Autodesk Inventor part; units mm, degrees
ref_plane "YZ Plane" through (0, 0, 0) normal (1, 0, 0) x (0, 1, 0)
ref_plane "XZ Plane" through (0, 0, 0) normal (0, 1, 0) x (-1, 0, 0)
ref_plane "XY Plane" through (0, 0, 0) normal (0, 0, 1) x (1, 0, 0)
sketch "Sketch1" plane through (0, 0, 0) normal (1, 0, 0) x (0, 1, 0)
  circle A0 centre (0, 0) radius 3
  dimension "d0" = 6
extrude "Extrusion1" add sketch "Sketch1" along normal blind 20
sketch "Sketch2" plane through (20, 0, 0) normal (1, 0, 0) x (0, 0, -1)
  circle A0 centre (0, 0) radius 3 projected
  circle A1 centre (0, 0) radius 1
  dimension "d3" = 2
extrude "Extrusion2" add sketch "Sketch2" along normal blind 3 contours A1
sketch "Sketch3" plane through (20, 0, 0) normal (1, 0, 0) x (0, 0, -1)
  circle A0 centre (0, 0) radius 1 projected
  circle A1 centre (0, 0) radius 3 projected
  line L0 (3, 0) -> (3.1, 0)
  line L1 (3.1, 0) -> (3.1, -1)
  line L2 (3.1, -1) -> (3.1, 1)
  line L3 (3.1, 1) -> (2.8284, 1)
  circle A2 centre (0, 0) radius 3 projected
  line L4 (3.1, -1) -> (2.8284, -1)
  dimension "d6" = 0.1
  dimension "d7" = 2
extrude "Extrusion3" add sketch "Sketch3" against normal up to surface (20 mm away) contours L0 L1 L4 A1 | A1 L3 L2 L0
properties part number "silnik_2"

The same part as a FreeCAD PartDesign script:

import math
import FreeCAD as App
import Part
import Sketcher

V = App.Vector

doc = App.newDocument("Part")
body = doc.addObject("PartDesign::Body", "Body")

# Sketch on YZ plane
sketch1 = body.newObject("Sketcher::SketchObject", "Sketch")
sketch1.AttachmentSupport = (doc.getObject("YZ_Plane"), [""])
sketch1.MapMode = "FlatFace"
sketch1.addGeometry(Part.Circle(V(0, 0, 0), V(0, 0, 1), 3), False)
sketch1.addConstraint([
    Sketcher.Constraint("Coincident", 0, 3, -1, 1),
    Sketcher.Constraint("Diameter", 0, 6.0),
])
pad1 = body.newObject("PartDesign::Pad", "Pad")
pad1.Profile = sketch1
pad1.Length = 20

# Sketch on YZ plane
sketch2 = body.newObject("Sketcher::SketchObject", "Sketch001")
sketch2.AttachmentSupport = (doc.getObject("YZ_Plane"), [""])
sketch2.MapMode = "FlatFace"
sketch2.AttachmentOffset = App.Placement(V(0, 0, 20), App.Rotation())
sketch2.addGeometry(Part.Circle(V(0, 0, 0), V(0, 0, 1), 1), False)
sketch2.addConstraint([
    Sketcher.Constraint("Coincident", 0, 3, -1, 1),
    Sketcher.Constraint("Diameter", 0, 2.0),
])
pad2 = body.newObject("PartDesign::Pad", "Pad001")
pad2.Profile = sketch2
pad2.Length = 3

# Sketch on YZ plane
sketch3 = body.newObject("Sketcher::SketchObject", "Sketch002")
sketch3.AttachmentSupport = (doc.getObject("YZ_Plane"), [""])
sketch3.MapMode = "FlatFace"
sketch3.AttachmentOffset = App.Placement(V(0, 0, 20), App.Rotation())
sketch3.addGeometry([
    Part.LineSegment(V(-1, -3.1, 0), V(1, -3.1, 0)),
    Part.LineSegment(V(1, -3.1, 0), V(1, -2.83, 0)),
    Part.ArcOfCircle(Part.Circle(V(0, 0, 0), V(0, 0, 1), 3), math.radians(-109), math.radians(-71)),
    Part.LineSegment(V(-1, -2.83, 0), V(-1, -3.1, 0)),
], False)
sketch3.addConstraint([
    Sketcher.Constraint("Coincident", 0, 2, 1, 1),
    Sketcher.Constraint("Coincident", 1, 2, 2, 2),
    Sketcher.Constraint("Coincident", 2, 1, 3, 1),
    Sketcher.Constraint("Coincident", 3, 2, 0, 1),
    Sketcher.Constraint("Horizontal", 0),
    Sketcher.Constraint("Vertical", 1),
    Sketcher.Constraint("Vertical", 3),
    Sketcher.Constraint("Coincident", 2, 3, -1, 1),
    Sketcher.Constraint("Horizontal", 1, 2, 2, 1),
    Sketcher.Constraint("DistanceX", 0, 1, 0, 2, 2.0),
    Sketcher.Constraint("Radius", 2, 3.0),
    Sketcher.Constraint("DistanceY", 0, 2, -1, 1, 3.1),
])
pad3 = body.newObject("PartDesign::Pad", "Pad002")
pad3.Profile = sketch3
pad3.Length = 20
pad3.Reversed = True

doc.recompute()
